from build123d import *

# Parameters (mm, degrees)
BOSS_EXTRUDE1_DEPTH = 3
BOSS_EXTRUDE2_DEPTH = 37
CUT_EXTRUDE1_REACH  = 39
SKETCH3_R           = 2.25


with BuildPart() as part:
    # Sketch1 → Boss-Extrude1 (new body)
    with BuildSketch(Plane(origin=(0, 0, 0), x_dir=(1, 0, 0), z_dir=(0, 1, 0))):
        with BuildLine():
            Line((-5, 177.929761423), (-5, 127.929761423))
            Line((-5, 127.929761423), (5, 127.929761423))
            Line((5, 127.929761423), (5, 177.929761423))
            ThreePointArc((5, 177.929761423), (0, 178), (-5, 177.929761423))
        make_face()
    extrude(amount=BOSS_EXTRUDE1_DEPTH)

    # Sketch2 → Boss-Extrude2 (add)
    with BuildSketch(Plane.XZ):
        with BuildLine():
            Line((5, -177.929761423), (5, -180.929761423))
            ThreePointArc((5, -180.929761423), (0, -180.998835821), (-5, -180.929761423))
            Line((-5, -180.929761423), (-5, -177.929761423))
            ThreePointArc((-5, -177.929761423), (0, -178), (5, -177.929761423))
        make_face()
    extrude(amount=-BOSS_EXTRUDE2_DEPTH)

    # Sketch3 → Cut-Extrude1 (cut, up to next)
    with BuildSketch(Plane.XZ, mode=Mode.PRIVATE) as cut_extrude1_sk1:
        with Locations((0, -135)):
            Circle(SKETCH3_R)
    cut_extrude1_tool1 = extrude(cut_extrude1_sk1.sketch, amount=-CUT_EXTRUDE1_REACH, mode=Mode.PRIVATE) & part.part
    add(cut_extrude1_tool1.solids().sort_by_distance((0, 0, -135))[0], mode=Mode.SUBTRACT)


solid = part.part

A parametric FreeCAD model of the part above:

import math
import FreeCAD as App
import Part
import Sketcher
Q = App.Units.Quantity

doc = App.newDocument("Part")
body = doc.addObject("PartDesign::Body", "Body")

sketch1 = body.newObject("Sketcher::SketchObject", "Sketch")
sketch1.AttachmentSupport = (doc.getObject("XZ_Plane"), [""])
sketch1.MapMode = "FlatFace"
sketch1.addGeometry([
    Part.LineSegment(App.Vector(-5, -178, 0), App.Vector(-5, -128, 0)),
    Part.LineSegment(App.Vector(-5, -128, 0), App.Vector(5, -128, 0)),
    Part.LineSegment(App.Vector(5, -128, 0), App.Vector(5, -178, 0)),
    Part.ArcOfCircle(Part.Circle(App.Vector(0, 0, 0), App.Vector(0, 0, 1), 178), math.radians(-91.61), math.radians(-88.39)),
], False)
sketch1.addConstraint([
    Sketcher.Constraint("Coincident", 0, 2, 1, 1),
    Sketcher.Constraint("Coincident", 1, 2, 2, 1),
    Sketcher.Constraint("Coincident", 2, 2, 3, 2),
    Sketcher.Constraint("Coincident", 3, 1, 0, 1),
    Sketcher.Constraint("Vertical", 0),
    Sketcher.Constraint("Horizontal", 1),
    Sketcher.Constraint("Vertical", 2),
    Sketcher.Constraint("Coincident", 3, 3, -1, 1),
    Sketcher.Constraint("Horizontal", 2, 2, 3, 1),
    Sketcher.Constraint("Radius", 3, Q("178 mm")),
    Sketcher.Constraint("DistanceX", 1, 1, 1, 2, Q("10 mm")),
    Sketcher.Constraint("DistanceY", 0, 1, 0, 2, Q("50 mm")),
])
pad1 = body.newObject("PartDesign::Pad", "Pad")
pad1.Profile = sketch1
pad1.Length = 3
pad1.Reversed = True

sketch2 = body.newObject("Sketcher::SketchObject", "Sketch001")
sketch2.AttachmentSupport = (doc.getObject("XZ_Plane"), [""])
sketch2.MapMode = "FlatFace"
sketch2.addGeometry([
    Part.LineSegment(App.Vector(5, -180.9, 0), App.Vector(5, -177.9, 0)),
    Part.ArcOfCircle(Part.Circle(App.Vector(0, 0, 0), App.Vector(0, 0, 1), 178), math.radians(-91.61), math.radians(-88.39)),
    Part.LineSegment(App.Vector(-5, -177.9, 0), App.Vector(-5, -180.9, 0)),
    Part.ArcOfCircle(Part.Circle(App.Vector(0, 0, 0), App.Vector(0, 0, 1), 181), math.radians(-91.58), math.radians(-88.42)),
], False)
sketch2.addConstraint([
    Sketcher.Constraint("Coincident", 0, 2, 1, 2),
    Sketcher.Constraint("Coincident", 1, 1, 2, 1),
    Sketcher.Constraint("Coincident", 2, 2, 3, 1),
    Sketcher.Constraint("Coincident", 3, 2, 0, 1),
    Sketcher.Constraint("Vertical", 0),
    Sketcher.Constraint("Vertical", 2),
    Sketcher.Constraint("Coincident", 1, 3, -1, 1),
    Sketcher.Constraint("Coincident", 3, 3, -1, 1),
    Sketcher.Constraint("Horizontal", 0, 2, 1, 1),
    Sketcher.Constraint("Radius", 1, Q("178 mm")),
    Sketcher.Constraint("DistanceY", 0, 1, 0, 2, Q("3 mm")),
    Sketcher.Constraint("DistanceX", -1, 1, 0, 2, Q("5 mm")),
])
pad2 = body.newObject("PartDesign::Pad", "Pad001")
pad2.Profile = sketch2
pad2.Length = 37
pad2.Reversed = True

sketch3 = body.newObject("Sketcher::SketchObject", "Sketch002")
sketch3.AttachmentSupport = (doc.getObject("XZ_Plane"), [""])
sketch3.MapMode = "FlatFace"
sketch3.addGeometry(Part.Circle(App.Vector(0, -135, 0), App.Vector(0, 0, 1), 2.2), False)
sketch3.addConstraint([
    Sketcher.Constraint("PointOnObject", 0, 3, -2),
    Sketcher.Constraint("Diameter", 0, Q("4.5 mm")),
    Sketcher.Constraint("DistanceY", 0, 3, -1, 1, Q("135 mm")),
])
pocket1 = body.newObject("PartDesign::Pocket", "Pocket")
pocket1.Profile = sketch3
pocket1.Type = "UpToFirst"

doc.recompute()
